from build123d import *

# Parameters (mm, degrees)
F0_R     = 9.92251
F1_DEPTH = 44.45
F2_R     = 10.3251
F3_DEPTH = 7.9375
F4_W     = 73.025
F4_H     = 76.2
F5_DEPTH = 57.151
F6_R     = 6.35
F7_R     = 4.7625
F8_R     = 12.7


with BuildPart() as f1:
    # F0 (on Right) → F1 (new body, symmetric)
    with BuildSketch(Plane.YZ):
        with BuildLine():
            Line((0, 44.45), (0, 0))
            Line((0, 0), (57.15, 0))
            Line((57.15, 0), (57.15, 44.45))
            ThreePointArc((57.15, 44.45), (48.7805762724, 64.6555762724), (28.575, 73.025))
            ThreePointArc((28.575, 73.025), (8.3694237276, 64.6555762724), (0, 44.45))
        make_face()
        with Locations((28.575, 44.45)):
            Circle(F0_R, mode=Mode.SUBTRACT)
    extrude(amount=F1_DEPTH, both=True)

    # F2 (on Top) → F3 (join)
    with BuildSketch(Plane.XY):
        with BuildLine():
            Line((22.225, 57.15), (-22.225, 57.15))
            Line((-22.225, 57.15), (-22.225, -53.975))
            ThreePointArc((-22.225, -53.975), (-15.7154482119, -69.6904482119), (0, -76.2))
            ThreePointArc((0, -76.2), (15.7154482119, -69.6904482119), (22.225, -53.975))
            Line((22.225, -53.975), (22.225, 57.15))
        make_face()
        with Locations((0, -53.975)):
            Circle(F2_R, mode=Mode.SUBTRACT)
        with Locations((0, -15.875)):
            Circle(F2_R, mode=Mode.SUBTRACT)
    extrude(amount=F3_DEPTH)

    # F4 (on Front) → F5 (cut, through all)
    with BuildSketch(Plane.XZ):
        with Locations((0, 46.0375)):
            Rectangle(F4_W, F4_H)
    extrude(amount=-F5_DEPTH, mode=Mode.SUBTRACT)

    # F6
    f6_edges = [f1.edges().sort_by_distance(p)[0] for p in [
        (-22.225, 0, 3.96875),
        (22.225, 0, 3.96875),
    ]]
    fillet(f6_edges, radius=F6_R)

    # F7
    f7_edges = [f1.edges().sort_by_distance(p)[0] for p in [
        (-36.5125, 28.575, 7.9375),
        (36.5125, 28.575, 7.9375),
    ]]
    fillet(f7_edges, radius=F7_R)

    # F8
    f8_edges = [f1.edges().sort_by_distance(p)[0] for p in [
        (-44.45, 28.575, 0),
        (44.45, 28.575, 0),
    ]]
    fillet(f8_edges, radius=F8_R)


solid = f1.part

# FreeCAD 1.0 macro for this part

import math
import FreeCAD as App
import Part
import Sketcher
from FreeCAD import Vector
Q = App.Units.Quantity


def edges_at(feature, points):
    """Names of the edges that pass closest to the given points."""
    edges = feature.Shape.Edges
    near = lambda p: min(range(len(edges)), key=lambda i: edges[i].distToShape(Part.Vertex(*p))[0])
    return sorted({f"Edge{near(p) + 1}" for p in points})


def add_polygon(sketch, points):
    """Adds a closed chain of lines whose ends are joined by coincident constraints."""
    first, n = sketch.GeometryCount, len(points)
    for a, b in zip(points, points[1:] + points[:1]):
        sketch.addGeometry(Part.LineSegment(App.Vector(*a, 0), App.Vector(*b, 0)), False)
    for i in range(n):
        sketch.addConstraint(Sketcher.Constraint("Coincident", first + i, 2, first + (i + 1) % n, 1))

doc = App.newDocument("Part")
body = doc.addObject("PartDesign::Body", "Body")

# Sketch on YZ plane
sketch1 = doc.addObject("Sketcher::SketchObject", "Sketch")
body.addObject(sketch1)
sketch1.AttachmentSupport = (doc.YZ_Plane, [""])
sketch1.MapMode = "FlatFace"
sketch1.addGeometry(Part.LineSegment(Vector(0, 44, 0), Vector(0, 0, 0)), False)
sketch1.addGeometry(Part.LineSegment(Vector(0, 0, 0), Vector(57, 0, 0)), False)
sketch1.addGeometry(Part.LineSegment(Vector(57, 0, 0), Vector(57, 44, 0)), False)
sketch1.addGeometry(Part.ArcOfCircle(Part.Circle(Vector(29, 44, 0), Vector(0, 0, 1), 29), math.radians(0), math.radians(90)), False)
sketch1.addGeometry(Part.ArcOfCircle(Part.Circle(Vector(29, 44, 0), Vector(0, 0, 1), 29), math.radians(90), math.radians(180)), False)
sketch1.addGeometry(Part.Circle(Vector(29, 44, 0), Vector(0, 0, 1), 10), False)
sketch1.addConstraint(Sketcher.Constraint("Coincident", 0, 2, 1, 1))
sketch1.addConstraint(Sketcher.Constraint("Coincident", 1, 2, 2, 1))
sketch1.addConstraint(Sketcher.Constraint("Tangent", 2, 2, 3, 1))
sketch1.addConstraint(Sketcher.Constraint("Tangent", 3, 2, 4, 1))
sketch1.addConstraint(Sketcher.Constraint("Tangent", 4, 2, 0, 1))
sketch1.addConstraint(Sketcher.Constraint("Vertical", 0))
sketch1.addConstraint(Sketcher.Constraint("Horizontal", 1))
sketch1.addConstraint(Sketcher.Constraint("Vertical", 2))
sketch1.addConstraint(Sketcher.Constraint("Coincident", 0, 2, -1, 1))
sketch1.addConstraint(Sketcher.Constraint("Coincident", 5, 3, 3, 3))
sketch1.addConstraint(Sketcher.Constraint("Equal", 3, 4))
sketch1.addConstraint(Sketcher.Constraint("Vertical", 5, 3, 3, 2))
sketch1.addConstraint(Sketcher.Constraint("Radius", 3, Q("1.125 in")))
sketch1.addConstraint(Sketcher.Constraint("Diameter", 5, Q("0.7813 in")))
sketch1.addConstraint(Sketcher.Constraint("DistanceY", 0, 2, 0, 1, Q("1.75 in")))
pad1 = doc.addObject("PartDesign::Pad", "Pad")
body.addObject(pad1)
pad1.Profile = sketch1
pad1.Length = Q("3.5 in")
pad1.Midplane = True

# Sketch on XY plane
sketch2 = doc.addObject("Sketcher::SketchObject", "Sketch001")
body.addObject(sketch2)
sketch2.AttachmentSupport = (doc.XY_Plane, [""])
sketch2.MapMode = "FlatFace"
sketch2.addGeometry(Part.LineSegment(Vector(22, 57, 0), Vector(-22, 57, 0)), False)
sketch2.addGeometry(Part.LineSegment(Vector(-22, 57, 0), Vector(-22, -54, 0)), False)
sketch2.addGeometry(Part.ArcOfCircle(Part.Circle(Vector(0, -54, 0), Vector(0, 0, 1), 22), math.radians(180), math.radians(270)), False)
sketch2.addGeometry(Part.ArcOfCircle(Part.Circle(Vector(0, -54, 0), Vector(0, 0, 1), 22), math.radians(-90), math.radians(0)), False)
sketch2.addGeometry(Part.LineSegment(Vector(22, -54, 0), Vector(22, 57, 0)), False)
sketch2.addGeometry(Part.Circle(Vector(0, -54, 0), Vector(0, 0, 1), 10), False)
sketch2.addGeometry(Part.Circle(Vector(0, -16, 0), Vector(0, 0, 1), 10), False)
sketch2.addConstraint(Sketcher.Constraint("Coincident", 0, 2, 1, 1))
sketch2.addConstraint(Sketcher.Constraint("Tangent", 1, 2, 2, 1))
sketch2.addConstraint(Sketcher.Constraint("Tangent", 2, 2, 3, 1))
sketch2.addConstraint(Sketcher.Constraint("Tangent", 3, 2, 4, 1))
sketch2.addConstraint(Sketcher.Constraint("Coincident", 4, 2, 0, 1))
sketch2.addConstraint(Sketcher.Constraint("Horizontal", 0))
sketch2.addConstraint(Sketcher.Constraint("Vertical", 1))
sketch2.addConstraint(Sketcher.Constraint("Vertical", 4))
sketch2.addConstraint(Sketcher.Constraint("Coincident", 5, 3, 2, 3))
sketch2.addConstraint(Sketcher.Constraint("Equal", 2, 3))
sketch2.addConstraint(Sketcher.Constraint("Equal", 5, 6))
sketch2.addConstraint(Sketcher.Constraint("PointOnObject", 2, 3, -2))
sketch2.addConstraint(Sketcher.Constraint("PointOnObject", 6, 3, -2))
sketch2.addConstraint(Sketcher.Constraint("PointOnObject", 2, 2, -2))
sketch2.addConstraint(Sketcher.Constraint("Diameter", 5, Q("0.813 in")))
sketch2.addConstraint(Sketcher.Constraint("DistanceY", 2, 2, -1, 1, Q("3 in")))
sketch2.addConstraint(Sketcher.Constraint("Radius", 2, Q("0.875 in")))
sketch2.addConstraint(Sketcher.Constraint("DistanceY", 2, 3, 6, 3, Q("1.5 in")))
sketch2.addConstraint(Sketcher.Constraint("DistanceY", 1, 2, 1, 1, Q("4.375 in")))
pad2 = doc.addObject("PartDesign::Pad", "Pad001")
body.addObject(pad2)
pad2.Profile = sketch2
pad2.Length = Q("0.3125 in")

# Sketch on XZ plane
sketch3 = doc.addObject("Sketcher::SketchObject", "Sketch002")
body.addObject(sketch3)
sketch3.AttachmentSupport = (doc.XZ_Plane, [""])
sketch3.MapMode = "FlatFace"
add_polygon(sketch3, [(-37, 84), (-37, 8), (37, 8), (37, 84)])  # lines 0-3
sketch3.addConstraint(Sketcher.Constraint("Vertical", 0))
sketch3.addConstraint(Sketcher.Constraint("Horizontal", 1))
sketch3.addConstraint(Sketcher.Constraint("Vertical", 2))
sketch3.addConstraint(Sketcher.Constraint("Horizontal", 3))
sketch3.addConstraint(Sketcher.Constraint("DistanceY", 0, 2, 0, 1, Q("3 in")))
sketch3.addConstraint(Sketcher.Constraint("DistanceX", 1, 1, 1, 2, Q("2.875 in")))
sketch3.addConstraint(Sketcher.Constraint("DistanceX", 0, 2, -1, 1, Q("1.4375 in")))
sketch3.addConstraint(Sketcher.Constraint("DistanceY", -1, 1, 0, 2, Q("0.3125 in")))
pocket1 = doc.addObject("PartDesign::Pocket", "Pocket")
body.addObject(pocket1)
pocket1.Profile = sketch3
pocket1.Type = "ThroughAll"
doc.recompute()

fillet = doc.addObject("PartDesign::Fillet", "Fillet")
body.addObject(fillet)
fillet.Base = (pocket1, edges_at(pocket1, [(-22.225, 0, 3.969), (22.225, 0, 3.969)]))
fillet.Radius = Q("0.25 in")
doc.recompute()

fillet2 = doc.addObject("PartDesign::Fillet", "Fillet001")
body.addObject(fillet2)
fillet2.Base = (fillet, edges_at(fillet, [(-36.513, 28.575, 7.938), (36.513, 28.575, 7.938)]))
fillet2.Radius = Q("0.1875 in")
doc.recompute()

fillet3 = doc.addObject("PartDesign::Fillet", "Fillet002")
body.addObject(fillet3)
fillet3.Base = (fillet2, edges_at(fillet2, [(-44.45, 28.575, 0), (44.45, 28.575, 0)]))
fillet3.Radius = Q("0.5 in")

doc.recompute()
